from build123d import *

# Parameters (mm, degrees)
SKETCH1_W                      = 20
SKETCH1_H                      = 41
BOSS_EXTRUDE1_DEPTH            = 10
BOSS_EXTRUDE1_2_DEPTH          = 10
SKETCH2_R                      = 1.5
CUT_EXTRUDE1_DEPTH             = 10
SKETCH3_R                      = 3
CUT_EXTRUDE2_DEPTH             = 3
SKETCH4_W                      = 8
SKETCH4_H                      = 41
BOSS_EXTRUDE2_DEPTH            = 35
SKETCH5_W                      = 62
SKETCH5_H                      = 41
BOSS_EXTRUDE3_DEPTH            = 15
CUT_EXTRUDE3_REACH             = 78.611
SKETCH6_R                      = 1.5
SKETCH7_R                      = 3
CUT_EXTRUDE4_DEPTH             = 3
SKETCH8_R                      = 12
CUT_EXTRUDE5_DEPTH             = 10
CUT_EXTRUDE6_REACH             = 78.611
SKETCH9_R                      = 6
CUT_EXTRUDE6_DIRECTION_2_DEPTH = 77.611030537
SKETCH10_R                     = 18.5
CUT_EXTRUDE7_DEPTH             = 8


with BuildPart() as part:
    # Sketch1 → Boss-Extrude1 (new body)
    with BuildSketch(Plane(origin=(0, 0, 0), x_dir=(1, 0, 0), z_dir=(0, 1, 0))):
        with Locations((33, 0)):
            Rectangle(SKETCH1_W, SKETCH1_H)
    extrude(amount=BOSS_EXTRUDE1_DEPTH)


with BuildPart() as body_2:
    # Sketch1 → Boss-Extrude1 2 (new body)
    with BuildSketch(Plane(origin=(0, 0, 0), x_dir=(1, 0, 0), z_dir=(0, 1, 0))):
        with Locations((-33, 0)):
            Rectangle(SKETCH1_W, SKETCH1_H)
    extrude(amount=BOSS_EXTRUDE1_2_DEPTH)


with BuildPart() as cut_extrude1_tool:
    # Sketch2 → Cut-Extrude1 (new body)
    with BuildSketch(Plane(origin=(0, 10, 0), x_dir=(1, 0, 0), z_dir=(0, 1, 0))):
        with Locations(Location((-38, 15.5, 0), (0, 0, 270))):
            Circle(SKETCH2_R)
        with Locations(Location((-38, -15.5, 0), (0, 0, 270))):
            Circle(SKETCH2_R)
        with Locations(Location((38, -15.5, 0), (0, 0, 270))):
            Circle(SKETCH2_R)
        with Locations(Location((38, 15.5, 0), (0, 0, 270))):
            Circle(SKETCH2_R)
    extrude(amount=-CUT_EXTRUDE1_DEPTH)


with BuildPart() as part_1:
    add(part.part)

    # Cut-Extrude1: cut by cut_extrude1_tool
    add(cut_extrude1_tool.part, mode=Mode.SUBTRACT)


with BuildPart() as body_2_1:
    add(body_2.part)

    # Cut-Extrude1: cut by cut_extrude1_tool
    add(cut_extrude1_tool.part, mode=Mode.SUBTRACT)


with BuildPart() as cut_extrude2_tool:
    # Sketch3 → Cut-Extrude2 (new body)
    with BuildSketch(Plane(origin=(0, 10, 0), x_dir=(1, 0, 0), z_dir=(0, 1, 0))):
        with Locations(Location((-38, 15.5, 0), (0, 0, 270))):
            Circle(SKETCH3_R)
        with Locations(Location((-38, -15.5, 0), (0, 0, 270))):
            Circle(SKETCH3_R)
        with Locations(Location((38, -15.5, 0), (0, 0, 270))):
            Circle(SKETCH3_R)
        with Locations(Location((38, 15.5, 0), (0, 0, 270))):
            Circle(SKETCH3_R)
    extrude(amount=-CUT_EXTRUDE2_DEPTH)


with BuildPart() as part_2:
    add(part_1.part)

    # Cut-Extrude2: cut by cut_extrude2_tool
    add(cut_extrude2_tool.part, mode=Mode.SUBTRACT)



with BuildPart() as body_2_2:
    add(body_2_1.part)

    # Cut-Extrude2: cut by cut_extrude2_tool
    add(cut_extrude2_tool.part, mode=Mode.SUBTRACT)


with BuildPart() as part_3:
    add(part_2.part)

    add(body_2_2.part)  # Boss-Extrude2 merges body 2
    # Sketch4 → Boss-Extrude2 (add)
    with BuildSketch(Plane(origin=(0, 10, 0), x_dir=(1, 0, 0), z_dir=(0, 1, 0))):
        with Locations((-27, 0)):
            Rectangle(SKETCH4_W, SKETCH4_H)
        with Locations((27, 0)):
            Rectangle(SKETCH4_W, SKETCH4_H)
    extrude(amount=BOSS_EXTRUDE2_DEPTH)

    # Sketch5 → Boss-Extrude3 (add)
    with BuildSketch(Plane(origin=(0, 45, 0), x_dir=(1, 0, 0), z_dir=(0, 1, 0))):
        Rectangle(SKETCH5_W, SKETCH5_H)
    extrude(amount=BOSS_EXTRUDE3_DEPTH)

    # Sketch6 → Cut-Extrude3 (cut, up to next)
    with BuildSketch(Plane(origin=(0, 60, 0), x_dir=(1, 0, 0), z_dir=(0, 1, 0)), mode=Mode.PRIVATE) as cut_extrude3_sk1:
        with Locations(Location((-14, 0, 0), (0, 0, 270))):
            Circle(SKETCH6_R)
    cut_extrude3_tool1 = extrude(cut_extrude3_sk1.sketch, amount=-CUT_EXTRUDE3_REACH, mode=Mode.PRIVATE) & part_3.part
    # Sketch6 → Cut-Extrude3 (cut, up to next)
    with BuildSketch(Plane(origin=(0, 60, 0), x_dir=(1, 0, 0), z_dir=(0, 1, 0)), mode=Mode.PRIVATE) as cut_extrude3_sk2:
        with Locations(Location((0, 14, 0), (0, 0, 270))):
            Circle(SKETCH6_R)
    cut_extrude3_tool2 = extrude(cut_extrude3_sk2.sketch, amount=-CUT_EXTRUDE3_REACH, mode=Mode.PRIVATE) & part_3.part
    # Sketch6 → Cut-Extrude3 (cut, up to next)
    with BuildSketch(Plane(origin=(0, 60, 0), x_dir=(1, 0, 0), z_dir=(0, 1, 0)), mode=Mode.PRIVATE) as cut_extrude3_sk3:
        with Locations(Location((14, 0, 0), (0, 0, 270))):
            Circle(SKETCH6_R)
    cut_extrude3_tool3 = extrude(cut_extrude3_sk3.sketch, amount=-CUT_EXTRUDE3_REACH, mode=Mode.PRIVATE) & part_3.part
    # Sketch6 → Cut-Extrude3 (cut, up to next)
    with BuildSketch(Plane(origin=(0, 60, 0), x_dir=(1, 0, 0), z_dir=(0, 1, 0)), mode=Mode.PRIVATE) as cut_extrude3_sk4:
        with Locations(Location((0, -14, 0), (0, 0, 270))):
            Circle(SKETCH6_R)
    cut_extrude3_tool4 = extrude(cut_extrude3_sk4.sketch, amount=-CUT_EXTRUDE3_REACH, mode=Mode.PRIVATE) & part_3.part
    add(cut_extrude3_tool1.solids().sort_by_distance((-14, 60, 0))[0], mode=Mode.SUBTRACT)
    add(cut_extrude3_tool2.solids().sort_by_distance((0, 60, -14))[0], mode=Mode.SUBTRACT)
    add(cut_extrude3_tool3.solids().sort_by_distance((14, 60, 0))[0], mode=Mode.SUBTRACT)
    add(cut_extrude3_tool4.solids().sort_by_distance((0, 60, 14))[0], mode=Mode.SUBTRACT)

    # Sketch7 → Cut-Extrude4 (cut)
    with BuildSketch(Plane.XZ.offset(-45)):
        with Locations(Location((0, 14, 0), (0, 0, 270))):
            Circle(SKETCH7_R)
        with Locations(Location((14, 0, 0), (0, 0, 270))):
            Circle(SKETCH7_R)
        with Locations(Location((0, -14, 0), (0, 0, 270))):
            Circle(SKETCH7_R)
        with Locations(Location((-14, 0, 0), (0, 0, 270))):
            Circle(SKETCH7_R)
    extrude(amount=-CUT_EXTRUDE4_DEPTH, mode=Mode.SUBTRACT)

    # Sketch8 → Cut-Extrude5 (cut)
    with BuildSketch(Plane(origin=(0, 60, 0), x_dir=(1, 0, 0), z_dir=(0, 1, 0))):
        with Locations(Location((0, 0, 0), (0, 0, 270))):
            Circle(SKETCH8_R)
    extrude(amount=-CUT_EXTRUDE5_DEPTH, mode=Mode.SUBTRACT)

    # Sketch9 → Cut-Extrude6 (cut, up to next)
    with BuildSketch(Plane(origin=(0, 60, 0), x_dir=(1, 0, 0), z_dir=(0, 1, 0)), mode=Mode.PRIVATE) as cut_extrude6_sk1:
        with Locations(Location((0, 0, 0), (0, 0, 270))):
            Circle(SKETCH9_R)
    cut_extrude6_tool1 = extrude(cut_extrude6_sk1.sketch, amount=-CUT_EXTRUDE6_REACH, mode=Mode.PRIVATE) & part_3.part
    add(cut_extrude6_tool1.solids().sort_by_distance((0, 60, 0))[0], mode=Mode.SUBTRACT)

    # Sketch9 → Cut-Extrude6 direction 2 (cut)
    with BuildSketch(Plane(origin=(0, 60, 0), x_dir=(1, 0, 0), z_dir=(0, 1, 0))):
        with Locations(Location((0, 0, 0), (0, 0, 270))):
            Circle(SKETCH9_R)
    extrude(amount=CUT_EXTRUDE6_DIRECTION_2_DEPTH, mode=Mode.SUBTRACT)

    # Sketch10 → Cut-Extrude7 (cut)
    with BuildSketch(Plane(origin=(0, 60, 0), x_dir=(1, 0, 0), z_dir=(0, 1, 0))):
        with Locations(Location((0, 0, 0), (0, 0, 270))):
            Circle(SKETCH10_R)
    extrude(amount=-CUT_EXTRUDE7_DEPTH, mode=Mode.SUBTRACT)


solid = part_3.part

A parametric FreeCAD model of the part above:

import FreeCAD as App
import Part
import Sketcher
from FreeCAD import Vector

doc = App.newDocument("Part")
body = doc.addObject("PartDesign::Body", "Body")

# Sketch on XZ plane
sketch1 = doc.addObject("Sketcher::SketchObject", "Sketch")
body.addObject(sketch1)
sketch1.AttachmentSupport = (doc.XZ_Plane, [""])
sketch1.MapMode = "FlatFace"
sketch1.addGeometry([
    Part.LineSegment(Vector(23, -20, 0), Vector(23, 20, 0)),
    Part.LineSegment(Vector(23, 20, 0), Vector(43, 20, 0)),
    Part.LineSegment(Vector(43, 20, 0), Vector(43, -20, 0)),
    Part.LineSegment(Vector(43, -20, 0), Vector(23, -20, 0)),
], False)
sketch1.addConstraint([
    Sketcher.Constraint("Coincident", 0, 2, 1, 1),
    Sketcher.Constraint("Coincident", 1, 2, 2, 1),
    Sketcher.Constraint("Coincident", 2, 2, 3, 1),
    Sketcher.Constraint("Coincident", 3, 2, 0, 1),
    Sketcher.Constraint("Vertical", 0),
    Sketcher.Constraint("Horizontal", 1),
    Sketcher.Constraint("Vertical", 2),
    Sketcher.Constraint("Horizontal", 3),
    Sketcher.Constraint("DistanceX", 1, 1, 1, 2, 20.0),
    Sketcher.Constraint("DistanceY", 0, 1, 0, 2, 41.0),
    Sketcher.Constraint("DistanceX", -1, 1, 0, 2, 23.0),
    Sketcher.Constraint("DistanceY", -1, 1, 0, 2, 20.5),
])
pad1 = doc.addObject("PartDesign::Pad", "Pad")
body.addObject(pad1)
pad1.Profile = sketch1
pad1.Length = 10
pad1.Reversed = True
body2 = doc.addObject("PartDesign::Body", "Body001")

# Sketch on XZ plane
sketch2 = doc.addObject("Sketcher::SketchObject", "Sketch001")
body2.addObject(sketch2)
sketch2.AttachmentSupport = (doc.getObject("XZ_Plane001"), [""])
sketch2.MapMode = "FlatFace"
sketch2.addGeometry([
    Part.LineSegment(Vector(-43, -20, 0), Vector(-43, 20, 0)),
    Part.LineSegment(Vector(-43, 20, 0), Vector(-23, 20, 0)),
    Part.LineSegment(Vector(-23, 20, 0), Vector(-23, -20, 0)),
    Part.LineSegment(Vector(-23, -20, 0), Vector(-43, -20, 0)),
], False)
sketch2.addConstraint([
    Sketcher.Constraint("Coincident", 0, 2, 1, 1),
    Sketcher.Constraint("Coincident", 1, 2, 2, 1),
    Sketcher.Constraint("Coincident", 2, 2, 3, 1),
    Sketcher.Constraint("Coincident", 3, 2, 0, 1),
    Sketcher.Constraint("Vertical", 0),
    Sketcher.Constraint("Horizontal", 1),
    Sketcher.Constraint("Vertical", 2),
    Sketcher.Constraint("Horizontal", 3),
    Sketcher.Constraint("DistanceX", 1, 1, 1, 2, 20.0),
    Sketcher.Constraint("DistanceY", 0, 1, 0, 2, 41.0),
    Sketcher.Constraint("DistanceX", 0, 2, -1, 1, 43.0),
    Sketcher.Constraint("DistanceY", -1, 1, 0, 2, 20.5),
])
pad2 = doc.addObject("PartDesign::Pad", "Pad001")
body2.addObject(pad2)
pad2.Profile = sketch2
pad2.Length = 10
pad2.Reversed = True
body3 = doc.addObject("PartDesign::Body", "Body002")
body3.AllowCompound = True

# Sketch on XZ plane
sketch3 = doc.addObject("Sketcher::SketchObject", "Sketch002")
body3.addObject(sketch3)
sketch3.AttachmentSupport = (doc.getObject("XZ_Plane002"), [""])
sketch3.MapMode = "FlatFace"
sketch3.AttachmentOffset = App.Placement(Vector(0, 0, -10), App.Rotation())
sketch3.addGeometry([
    Part.Circle(Vector(-38, -15.5, 0), Vector(0, 0, 1), 1.5),
    Part.Circle(Vector(-38, 15.5, 0), Vector(0, 0, 1), 1.5),
    Part.Circle(Vector(38, 15.5, 0), Vector(0, 0, 1), 1.5),
    Part.Circle(Vector(38, -15.5, 0), Vector(0, 0, 1), 1.5),
], False)
sketch3.addConstraint([
    Sketcher.Constraint("Equal", 0, 1),
    Sketcher.Constraint("Equal", 1, 2),
    Sketcher.Constraint("Equal", 2, 3),
    Sketcher.Constraint("Symmetric", 0, 3, 2, 3, -1, 1),
    Sketcher.Constraint("Symmetric", 1, 3, 3, 3, -1, 1),
    Sketcher.Constraint("Symmetric", 1, 3, 2, 3, -2),
    Sketcher.Constraint("Diameter", 0, 3.0),
    Sketcher.Constraint("DistanceX", 0, 3, -1, 1, 38.0),
    Sketcher.Constraint("DistanceY", 0, 3, 1, 3, 31.0),
])
pad3 = doc.addObject("PartDesign::Pad", "Pad002")
body3.addObject(pad3)
pad3.Profile = sketch3
pad3.Length = 10
doc.recompute()

body4 = doc.addObject("PartDesign::Body", "Body003")
body4.BaseFeature = body3
boolean = doc.addObject("PartDesign::Boolean", "Boolean")
body.addObject(boolean)
boolean.Type = "Cut"
boolean.addObjects([body4])
doc.recompute()

boolean2 = doc.addObject("PartDesign::Boolean", "Boolean001")
body2.addObject(boolean2)
boolean2.Type = "Cut"
boolean2.addObjects([body3])
body5 = doc.addObject("PartDesign::Body", "Body004")
body5.AllowCompound = True

# Sketch on XZ plane
sketch4 = doc.addObject("Sketcher::SketchObject", "Sketch003")
body5.addObject(sketch4)
sketch4.AttachmentSupport = (doc.getObject("XZ_Plane004"), [""])
sketch4.MapMode = "FlatFace"
sketch4.AttachmentOffset = App.Placement(Vector(0, 0, -10), App.Rotation())
sketch4.addGeometry([
    Part.Circle(Vector(-38, -15.5, 0), Vector(0, 0, 1), 3),
    Part.Circle(Vector(-38, 15.5, 0), Vector(0, 0, 1), 3),
    Part.Circle(Vector(38, 15.5, 0), Vector(0, 0, 1), 3),
    Part.Circle(Vector(38, -15.5, 0), Vector(0, 0, 1), 3),
], False)
sketch4.addConstraint([
    Sketcher.Constraint("Equal", 0, 1),
    Sketcher.Constraint("Equal", 1, 2),
    Sketcher.Constraint("Equal", 2, 3),
    Sketcher.Constraint("Symmetric", 0, 3, 2, 3, -1, 1),
    Sketcher.Constraint("Symmetric", 1, 3, 3, 3, -1, 1),
    Sketcher.Constraint("Symmetric", 1, 3, 2, 3, -2),
    Sketcher.Constraint("Diameter", 0, 6.0),
    Sketcher.Constraint("DistanceX", 0, 3, -1, 1, 38.0),
    Sketcher.Constraint("DistanceY", 0, 3, 1, 3, 31.0),
])
pad4 = doc.addObject("PartDesign::Pad", "Pad003")
body5.addObject(pad4)
pad4.Profile = sketch4
pad4.Length = 3
doc.recompute()

body6 = doc.addObject("PartDesign::Body", "Body005")
body6.BaseFeature = body5
boolean3 = doc.addObject("PartDesign::Boolean", "Boolean002")
body.addObject(boolean3)
boolean3.Type = "Cut"
boolean3.addObjects([body6])
doc.recompute()

boolean4 = doc.addObject("PartDesign::Boolean", "Boolean003")
body2.addObject(boolean4)
boolean4.Type = "Cut"
boolean4.addObjects([body5])
body.AllowCompound = True
doc.recompute()

boolean5 = doc.addObject("PartDesign::Boolean", "Boolean004")
body.addObject(boolean5)
boolean5.Type = "Fuse"
boolean5.addObjects([body2])

# Sketch on XZ plane
sketch5 = doc.addObject("Sketcher::SketchObject", "Sketch004")
body.addObject(sketch5)
sketch5.AttachmentSupport = (doc.XZ_Plane, [""])
sketch5.MapMode = "FlatFace"
sketch5.AttachmentOffset = App.Placement(Vector(0, 0, -10), App.Rotation())
sketch5.addGeometry([
    Part.LineSegment(Vector(-31, -20, 0), Vector(-31, 20, 0)),  # 0
    Part.LineSegment(Vector(-31, 20, 0), Vector(-23, 20, 0)),  # 1
    Part.LineSegment(Vector(-23, 20, 0), Vector(-23, -20, 0)),  # 2
    Part.LineSegment(Vector(-23, -20, 0), Vector(-31, -20, 0)),  # 3
    Part.LineSegment(Vector(23, -20, 0), Vector(23, 20, 0)),  # 4
    Part.LineSegment(Vector(23, 20, 0), Vector(31, 20, 0)),  # 5
    Part.LineSegment(Vector(31, 20, 0), Vector(31, -20, 0)),  # 6
    Part.LineSegment(Vector(31, -20, 0), Vector(23, -20, 0)),  # 7
], False)
sketch5.addConstraint([
    Sketcher.Constraint("Coincident", 0, 2, 1, 1),
    Sketcher.Constraint("Coincident", 1, 2, 2, 1),
    Sketcher.Constraint("Coincident", 2, 2, 3, 1),
    Sketcher.Constraint("Coincident", 3, 2, 0, 1),
    Sketcher.Constraint("Coincident", 4, 2, 5, 1),
    Sketcher.Constraint("Coincident", 5, 2, 6, 1),
    Sketcher.Constraint("Coincident", 6, 2, 7, 1),
    Sketcher.Constraint("Coincident", 7, 2, 4, 1),
    Sketcher.Constraint("Vertical", 0),
    Sketcher.Constraint("Horizontal", 1),
    Sketcher.Constraint("Vertical", 2),
    Sketcher.Constraint("Horizontal", 3),
    Sketcher.Constraint("Vertical", 4),
    Sketcher.Constraint("Horizontal", 5),
    Sketcher.Constraint("Vertical", 6),
    Sketcher.Constraint("Horizontal", 7),
    Sketcher.Constraint("Symmetric", 2, 2, 4, 2, -1, 1),
    Sketcher.Constraint("Symmetric", 0, 2, 6, 2, -1, 1),
    Sketcher.Constraint("Horizontal", 1, 2, 4, 2),
    Sketcher.Constraint("DistanceX", 1, 1, 1, 2, 8.0),
    Sketcher.Constraint("DistanceY", 0, 1, 0, 2, 41.0),
    Sketcher.Constraint("DistanceX", 0, 2, -1, 1, 31.0),
])
pad5 = doc.addObject("PartDesign::Pad", "Pad004")
body.addObject(pad5)
pad5.Profile = sketch5
pad5.Length = 35
pad5.Reversed = True

# Sketch on XZ plane
sketch6 = doc.addObject("Sketcher::SketchObject", "Sketch005")
body.addObject(sketch6)
sketch6.AttachmentSupport = (doc.XZ_Plane, [""])
sketch6.MapMode = "FlatFace"
sketch6.AttachmentOffset = App.Placement(Vector(0, 0, -45), App.Rotation())
sketch6.addGeometry([
    Part.LineSegment(Vector(-31, -20, 0), Vector(-31, 20, 0)),
    Part.LineSegment(Vector(-31, 20, 0), Vector(31, 20, 0)),
    Part.LineSegment(Vector(31, 20, 0), Vector(31, -20, 0)),
    Part.LineSegment(Vector(31, -20, 0), Vector(-31, -20, 0)),
], False)
sketch6.addConstraint([
    Sketcher.Constraint("Coincident", 0, 2, 1, 1),
    Sketcher.Constraint("Coincident", 1, 2, 2, 1),
    Sketcher.Constraint("Coincident", 2, 2, 3, 1),
    Sketcher.Constraint("Coincident", 3, 2, 0, 1),
    Sketcher.Constraint("Vertical", 0),
    Sketcher.Constraint("Horizontal", 1),
    Sketcher.Constraint("Vertical", 2),
    Sketcher.Constraint("Horizontal", 3),
    Sketcher.Constraint("Symmetric", 0, 2, 2, 2, -1, 1),
    Sketcher.Constraint("DistanceX", 1, 1, 1, 2, 62.0),
    Sketcher.Constraint("DistanceY", 0, 1, 0, 2, 41.0),
])
pad6 = doc.addObject("PartDesign::Pad", "Pad005")
body.addObject(pad6)
pad6.Profile = sketch6
pad6.Length = 15
pad6.Reversed = True

# Sketch on XZ plane
sketch7 = doc.addObject("Sketcher::SketchObject", "Sketch006")
body.addObject(sketch7)
sketch7.AttachmentSupport = (doc.XZ_Plane, [""])
sketch7.MapMode = "FlatFace"
sketch7.AttachmentOffset = App.Placement(Vector(0, 0, -60), App.Rotation())
sketch7.addGeometry(Part.Circle(Vector(-14, 0, 0), Vector(0, 0, 1), 1.5), False)
sketch7.addConstraint([
    Sketcher.Constraint("PointOnObject", 0, 3, -1),
    Sketcher.Constraint("Diameter", 0, 3.0),
    Sketcher.Constraint("DistanceX", 0, 3, -1, 1, 14.0),
])
pocket1 = doc.addObject("PartDesign::Pocket", "Pocket")
body.addObject(pocket1)
pocket1.Profile = sketch7
pocket1.Type = "UpToFirst"
pocket1.Reversed = True

# Sketch on XZ plane
sketch8 = doc.addObject("Sketcher::SketchObject", "Sketch007")
body.addObject(sketch8)
sketch8.AttachmentSupport = (doc.XZ_Plane, [""])
sketch8.MapMode = "FlatFace"
sketch8.AttachmentOffset = App.Placement(Vector(0, 0, -60), App.Rotation())
sketch8.addGeometry(Part.Circle(Vector(0, -14, 0), Vector(0, 0, 1), 1.5), False)
sketch8.addConstraint([
    Sketcher.Constraint("PointOnObject", 0, 3, -2),
    Sketcher.Constraint("Diameter", 0, 3.0),
    Sketcher.Constraint("DistanceY", 0, 3, -1, 1, 14.0),
])
pocket2 = doc.addObject("PartDesign::Pocket", "Pocket001")
body.addObject(pocket2)
pocket2.Profile = sketch8
pocket2.Type = "UpToFirst"
pocket2.Reversed = True

# Sketch on XZ plane
sketch9 = doc.addObject("Sketcher::SketchObject", "Sketch008")
body.addObject(sketch9)
sketch9.AttachmentSupport = (doc.XZ_Plane, [""])
sketch9.MapMode = "FlatFace"
sketch9.AttachmentOffset = App.Placement(Vector(0, 0, -60), App.Rotation())
sketch9.addGeometry(Part.Circle(Vector(14, 0, 0), Vector(0, 0, 1), 1.5), False)
sketch9.addConstraint([
    Sketcher.Constraint("PointOnObject", 0, 3, -1),
    Sketcher.Constraint("Diameter", 0, 3.0),
    Sketcher.Constraint("DistanceX", -1, 1, 0, 3, 14.0),
])
pocket3 = doc.addObject("PartDesign::Pocket", "Pocket002")
body.addObject(pocket3)
pocket3.Profile = sketch9
pocket3.Type = "UpToFirst"
pocket3.Reversed = True

# Sketch on XZ plane
sketch10 = doc.addObject("Sketcher::SketchObject", "Sketch009")
body.addObject(sketch10)
sketch10.AttachmentSupport = (doc.XZ_Plane, [""])
sketch10.MapMode = "FlatFace"
sketch10.AttachmentOffset = App.Placement(Vector(0, 0, -60), App.Rotation())
sketch10.addGeometry(Part.Circle(Vector(0, 14, 0), Vector(0, 0, 1), 1.5), False)
sketch10.addConstraint([
    Sketcher.Constraint("PointOnObject", 0, 3, -2),
    Sketcher.Constraint("Diameter", 0, 3.0),
    Sketcher.Constraint("DistanceY", -1, 1, 0, 3, 14.0),
])
pocket4 = doc.addObject("PartDesign::Pocket", "Pocket003")
body.addObject(pocket4)
pocket4.Profile = sketch10
pocket4.Type = "UpToFirst"
pocket4.Reversed = True

# Sketch on XZ plane
sketch11 = doc.addObject("Sketcher::SketchObject", "Sketch010")
body.addObject(sketch11)
sketch11.AttachmentSupport = (doc.XZ_Plane, [""])
sketch11.MapMode = "FlatFace"
sketch11.AttachmentOffset = App.Placement(Vector(0, 0, -45), App.Rotation())
sketch11.addGeometry([
    Part.Circle(Vector(0, 14, 0), Vector(0, 0, 1), 3),
    Part.Circle(Vector(14, 0, 0), Vector(0, 0, 1), 3),
    Part.Circle(Vector(0, -14, 0), Vector(0, 0, 1), 3),
    Part.Circle(Vector(-14, 0, 0), Vector(0, 0, 1), 3),
], False)
sketch11.addConstraint([
    Sketcher.Constraint("Equal", 0, 1),
    Sketcher.Constraint("Equal", 1, 2),
    Sketcher.Constraint("Equal", 2, 3),
    Sketcher.Constraint("Symmetric", 0, 3, 2, 3, -1, 1),
    Sketcher.Constraint("Symmetric", 1, 3, 3, 3, -1, 1),
    Sketcher.Constraint("PointOnObject", 0, 3, -2),
    Sketcher.Constraint("PointOnObject", 1, 3, -1),
    Sketcher.Constraint("Diameter", 0, 6.0),
    Sketcher.Constraint("DistanceY", -1, 1, 0, 3, 14.0),
    Sketcher.Constraint("DistanceX", -1, 1, 1, 3, 14.0),
])
pocket5 = doc.addObject("PartDesign::Pocket", "Pocket004")
body.addObject(pocket5)
pocket5.Profile = sketch11
pocket5.Length = 3

# Sketch on XZ plane
sketch12 = doc.addObject("Sketcher::SketchObject", "Sketch011")
body.addObject(sketch12)
sketch12.AttachmentSupport = (doc.XZ_Plane, [""])
sketch12.MapMode = "FlatFace"
sketch12.AttachmentOffset = App.Placement(Vector(0, 0, -60), App.Rotation())
sketch12.addGeometry(Part.Circle(Vector(0, 0, 0), Vector(0, 0, 1), 12), False)
sketch12.addConstraint([
    Sketcher.Constraint("Coincident", 0, 3, -1, 1),
    Sketcher.Constraint("Diameter", 0, 24.0),
])
pocket6 = doc.addObject("PartDesign::Pocket", "Pocket005")
body.addObject(pocket6)
pocket6.Profile = sketch12
pocket6.Length = 10
pocket6.Reversed = True

# Sketch on XZ plane
sketch13 = doc.addObject("Sketcher::SketchObject", "Sketch012")
body.addObject(sketch13)
sketch13.AttachmentSupport = (doc.XZ_Plane, [""])
sketch13.MapMode = "FlatFace"
sketch13.AttachmentOffset = App.Placement(Vector(0, 0, -60), App.Rotation())
sketch13.addGeometry(Part.Circle(Vector(0, 0, 0), Vector(0, 0, 1), 6), False)
sketch13.addConstraint([
    Sketcher.Constraint("Coincident", 0, 3, -1, 1),
    Sketcher.Constraint("Diameter", 0, 12.0),
])
pocket7 = doc.addObject("PartDesign::Pocket", "Pocket006")
body.addObject(pocket7)
pocket7.Profile = sketch13
pocket7.Length = 15
pocket7.Reversed = True

# Sketch on XZ plane
sketch14 = doc.addObject("Sketcher::SketchObject", "Sketch013")
body.addObject(sketch14)
sketch14.AttachmentSupport = (doc.XZ_Plane, [""])
sketch14.MapMode = "FlatFace"
sketch14.AttachmentOffset = App.Placement(Vector(0, 0, -60), App.Rotation())
sketch14.addGeometry(Part.Circle(Vector(0, 0, 0), Vector(0, 0, 1), 6), False)
sketch14.addConstraint([
    Sketcher.Constraint("Coincident", 0, 3, -1, 1),
    Sketcher.Constraint("Diameter", 0, 12.0),
])
pocket8 = doc.addObject("PartDesign::Pocket", "Pocket007")
body.addObject(pocket8)
pocket8.Profile = sketch14
pocket8.Length = 77.611031

# Sketch on XZ plane
sketch15 = doc.addObject("Sketcher::SketchObject", "Sketch014")
body.addObject(sketch15)
sketch15.AttachmentSupport = (doc.XZ_Plane, [""])
sketch15.MapMode = "FlatFace"
sketch15.AttachmentOffset = App.Placement(Vector(0, 0, -60), App.Rotation())
sketch15.addGeometry(Part.Circle(Vector(0, 0, 0), Vector(0, 0, 1), 18), False)
sketch15.addConstraint([
    Sketcher.Constraint("Coincident", 0, 3, -1, 1),
    Sketcher.Constraint("Diameter", 0, 37.0),
])
pocket9 = doc.addObject("PartDesign::Pocket", "Pocket008")
body.addObject(pocket9)
pocket9.Profile = sketch15
pocket9.Length = 8
pocket9.Reversed = True

doc.recompute()
